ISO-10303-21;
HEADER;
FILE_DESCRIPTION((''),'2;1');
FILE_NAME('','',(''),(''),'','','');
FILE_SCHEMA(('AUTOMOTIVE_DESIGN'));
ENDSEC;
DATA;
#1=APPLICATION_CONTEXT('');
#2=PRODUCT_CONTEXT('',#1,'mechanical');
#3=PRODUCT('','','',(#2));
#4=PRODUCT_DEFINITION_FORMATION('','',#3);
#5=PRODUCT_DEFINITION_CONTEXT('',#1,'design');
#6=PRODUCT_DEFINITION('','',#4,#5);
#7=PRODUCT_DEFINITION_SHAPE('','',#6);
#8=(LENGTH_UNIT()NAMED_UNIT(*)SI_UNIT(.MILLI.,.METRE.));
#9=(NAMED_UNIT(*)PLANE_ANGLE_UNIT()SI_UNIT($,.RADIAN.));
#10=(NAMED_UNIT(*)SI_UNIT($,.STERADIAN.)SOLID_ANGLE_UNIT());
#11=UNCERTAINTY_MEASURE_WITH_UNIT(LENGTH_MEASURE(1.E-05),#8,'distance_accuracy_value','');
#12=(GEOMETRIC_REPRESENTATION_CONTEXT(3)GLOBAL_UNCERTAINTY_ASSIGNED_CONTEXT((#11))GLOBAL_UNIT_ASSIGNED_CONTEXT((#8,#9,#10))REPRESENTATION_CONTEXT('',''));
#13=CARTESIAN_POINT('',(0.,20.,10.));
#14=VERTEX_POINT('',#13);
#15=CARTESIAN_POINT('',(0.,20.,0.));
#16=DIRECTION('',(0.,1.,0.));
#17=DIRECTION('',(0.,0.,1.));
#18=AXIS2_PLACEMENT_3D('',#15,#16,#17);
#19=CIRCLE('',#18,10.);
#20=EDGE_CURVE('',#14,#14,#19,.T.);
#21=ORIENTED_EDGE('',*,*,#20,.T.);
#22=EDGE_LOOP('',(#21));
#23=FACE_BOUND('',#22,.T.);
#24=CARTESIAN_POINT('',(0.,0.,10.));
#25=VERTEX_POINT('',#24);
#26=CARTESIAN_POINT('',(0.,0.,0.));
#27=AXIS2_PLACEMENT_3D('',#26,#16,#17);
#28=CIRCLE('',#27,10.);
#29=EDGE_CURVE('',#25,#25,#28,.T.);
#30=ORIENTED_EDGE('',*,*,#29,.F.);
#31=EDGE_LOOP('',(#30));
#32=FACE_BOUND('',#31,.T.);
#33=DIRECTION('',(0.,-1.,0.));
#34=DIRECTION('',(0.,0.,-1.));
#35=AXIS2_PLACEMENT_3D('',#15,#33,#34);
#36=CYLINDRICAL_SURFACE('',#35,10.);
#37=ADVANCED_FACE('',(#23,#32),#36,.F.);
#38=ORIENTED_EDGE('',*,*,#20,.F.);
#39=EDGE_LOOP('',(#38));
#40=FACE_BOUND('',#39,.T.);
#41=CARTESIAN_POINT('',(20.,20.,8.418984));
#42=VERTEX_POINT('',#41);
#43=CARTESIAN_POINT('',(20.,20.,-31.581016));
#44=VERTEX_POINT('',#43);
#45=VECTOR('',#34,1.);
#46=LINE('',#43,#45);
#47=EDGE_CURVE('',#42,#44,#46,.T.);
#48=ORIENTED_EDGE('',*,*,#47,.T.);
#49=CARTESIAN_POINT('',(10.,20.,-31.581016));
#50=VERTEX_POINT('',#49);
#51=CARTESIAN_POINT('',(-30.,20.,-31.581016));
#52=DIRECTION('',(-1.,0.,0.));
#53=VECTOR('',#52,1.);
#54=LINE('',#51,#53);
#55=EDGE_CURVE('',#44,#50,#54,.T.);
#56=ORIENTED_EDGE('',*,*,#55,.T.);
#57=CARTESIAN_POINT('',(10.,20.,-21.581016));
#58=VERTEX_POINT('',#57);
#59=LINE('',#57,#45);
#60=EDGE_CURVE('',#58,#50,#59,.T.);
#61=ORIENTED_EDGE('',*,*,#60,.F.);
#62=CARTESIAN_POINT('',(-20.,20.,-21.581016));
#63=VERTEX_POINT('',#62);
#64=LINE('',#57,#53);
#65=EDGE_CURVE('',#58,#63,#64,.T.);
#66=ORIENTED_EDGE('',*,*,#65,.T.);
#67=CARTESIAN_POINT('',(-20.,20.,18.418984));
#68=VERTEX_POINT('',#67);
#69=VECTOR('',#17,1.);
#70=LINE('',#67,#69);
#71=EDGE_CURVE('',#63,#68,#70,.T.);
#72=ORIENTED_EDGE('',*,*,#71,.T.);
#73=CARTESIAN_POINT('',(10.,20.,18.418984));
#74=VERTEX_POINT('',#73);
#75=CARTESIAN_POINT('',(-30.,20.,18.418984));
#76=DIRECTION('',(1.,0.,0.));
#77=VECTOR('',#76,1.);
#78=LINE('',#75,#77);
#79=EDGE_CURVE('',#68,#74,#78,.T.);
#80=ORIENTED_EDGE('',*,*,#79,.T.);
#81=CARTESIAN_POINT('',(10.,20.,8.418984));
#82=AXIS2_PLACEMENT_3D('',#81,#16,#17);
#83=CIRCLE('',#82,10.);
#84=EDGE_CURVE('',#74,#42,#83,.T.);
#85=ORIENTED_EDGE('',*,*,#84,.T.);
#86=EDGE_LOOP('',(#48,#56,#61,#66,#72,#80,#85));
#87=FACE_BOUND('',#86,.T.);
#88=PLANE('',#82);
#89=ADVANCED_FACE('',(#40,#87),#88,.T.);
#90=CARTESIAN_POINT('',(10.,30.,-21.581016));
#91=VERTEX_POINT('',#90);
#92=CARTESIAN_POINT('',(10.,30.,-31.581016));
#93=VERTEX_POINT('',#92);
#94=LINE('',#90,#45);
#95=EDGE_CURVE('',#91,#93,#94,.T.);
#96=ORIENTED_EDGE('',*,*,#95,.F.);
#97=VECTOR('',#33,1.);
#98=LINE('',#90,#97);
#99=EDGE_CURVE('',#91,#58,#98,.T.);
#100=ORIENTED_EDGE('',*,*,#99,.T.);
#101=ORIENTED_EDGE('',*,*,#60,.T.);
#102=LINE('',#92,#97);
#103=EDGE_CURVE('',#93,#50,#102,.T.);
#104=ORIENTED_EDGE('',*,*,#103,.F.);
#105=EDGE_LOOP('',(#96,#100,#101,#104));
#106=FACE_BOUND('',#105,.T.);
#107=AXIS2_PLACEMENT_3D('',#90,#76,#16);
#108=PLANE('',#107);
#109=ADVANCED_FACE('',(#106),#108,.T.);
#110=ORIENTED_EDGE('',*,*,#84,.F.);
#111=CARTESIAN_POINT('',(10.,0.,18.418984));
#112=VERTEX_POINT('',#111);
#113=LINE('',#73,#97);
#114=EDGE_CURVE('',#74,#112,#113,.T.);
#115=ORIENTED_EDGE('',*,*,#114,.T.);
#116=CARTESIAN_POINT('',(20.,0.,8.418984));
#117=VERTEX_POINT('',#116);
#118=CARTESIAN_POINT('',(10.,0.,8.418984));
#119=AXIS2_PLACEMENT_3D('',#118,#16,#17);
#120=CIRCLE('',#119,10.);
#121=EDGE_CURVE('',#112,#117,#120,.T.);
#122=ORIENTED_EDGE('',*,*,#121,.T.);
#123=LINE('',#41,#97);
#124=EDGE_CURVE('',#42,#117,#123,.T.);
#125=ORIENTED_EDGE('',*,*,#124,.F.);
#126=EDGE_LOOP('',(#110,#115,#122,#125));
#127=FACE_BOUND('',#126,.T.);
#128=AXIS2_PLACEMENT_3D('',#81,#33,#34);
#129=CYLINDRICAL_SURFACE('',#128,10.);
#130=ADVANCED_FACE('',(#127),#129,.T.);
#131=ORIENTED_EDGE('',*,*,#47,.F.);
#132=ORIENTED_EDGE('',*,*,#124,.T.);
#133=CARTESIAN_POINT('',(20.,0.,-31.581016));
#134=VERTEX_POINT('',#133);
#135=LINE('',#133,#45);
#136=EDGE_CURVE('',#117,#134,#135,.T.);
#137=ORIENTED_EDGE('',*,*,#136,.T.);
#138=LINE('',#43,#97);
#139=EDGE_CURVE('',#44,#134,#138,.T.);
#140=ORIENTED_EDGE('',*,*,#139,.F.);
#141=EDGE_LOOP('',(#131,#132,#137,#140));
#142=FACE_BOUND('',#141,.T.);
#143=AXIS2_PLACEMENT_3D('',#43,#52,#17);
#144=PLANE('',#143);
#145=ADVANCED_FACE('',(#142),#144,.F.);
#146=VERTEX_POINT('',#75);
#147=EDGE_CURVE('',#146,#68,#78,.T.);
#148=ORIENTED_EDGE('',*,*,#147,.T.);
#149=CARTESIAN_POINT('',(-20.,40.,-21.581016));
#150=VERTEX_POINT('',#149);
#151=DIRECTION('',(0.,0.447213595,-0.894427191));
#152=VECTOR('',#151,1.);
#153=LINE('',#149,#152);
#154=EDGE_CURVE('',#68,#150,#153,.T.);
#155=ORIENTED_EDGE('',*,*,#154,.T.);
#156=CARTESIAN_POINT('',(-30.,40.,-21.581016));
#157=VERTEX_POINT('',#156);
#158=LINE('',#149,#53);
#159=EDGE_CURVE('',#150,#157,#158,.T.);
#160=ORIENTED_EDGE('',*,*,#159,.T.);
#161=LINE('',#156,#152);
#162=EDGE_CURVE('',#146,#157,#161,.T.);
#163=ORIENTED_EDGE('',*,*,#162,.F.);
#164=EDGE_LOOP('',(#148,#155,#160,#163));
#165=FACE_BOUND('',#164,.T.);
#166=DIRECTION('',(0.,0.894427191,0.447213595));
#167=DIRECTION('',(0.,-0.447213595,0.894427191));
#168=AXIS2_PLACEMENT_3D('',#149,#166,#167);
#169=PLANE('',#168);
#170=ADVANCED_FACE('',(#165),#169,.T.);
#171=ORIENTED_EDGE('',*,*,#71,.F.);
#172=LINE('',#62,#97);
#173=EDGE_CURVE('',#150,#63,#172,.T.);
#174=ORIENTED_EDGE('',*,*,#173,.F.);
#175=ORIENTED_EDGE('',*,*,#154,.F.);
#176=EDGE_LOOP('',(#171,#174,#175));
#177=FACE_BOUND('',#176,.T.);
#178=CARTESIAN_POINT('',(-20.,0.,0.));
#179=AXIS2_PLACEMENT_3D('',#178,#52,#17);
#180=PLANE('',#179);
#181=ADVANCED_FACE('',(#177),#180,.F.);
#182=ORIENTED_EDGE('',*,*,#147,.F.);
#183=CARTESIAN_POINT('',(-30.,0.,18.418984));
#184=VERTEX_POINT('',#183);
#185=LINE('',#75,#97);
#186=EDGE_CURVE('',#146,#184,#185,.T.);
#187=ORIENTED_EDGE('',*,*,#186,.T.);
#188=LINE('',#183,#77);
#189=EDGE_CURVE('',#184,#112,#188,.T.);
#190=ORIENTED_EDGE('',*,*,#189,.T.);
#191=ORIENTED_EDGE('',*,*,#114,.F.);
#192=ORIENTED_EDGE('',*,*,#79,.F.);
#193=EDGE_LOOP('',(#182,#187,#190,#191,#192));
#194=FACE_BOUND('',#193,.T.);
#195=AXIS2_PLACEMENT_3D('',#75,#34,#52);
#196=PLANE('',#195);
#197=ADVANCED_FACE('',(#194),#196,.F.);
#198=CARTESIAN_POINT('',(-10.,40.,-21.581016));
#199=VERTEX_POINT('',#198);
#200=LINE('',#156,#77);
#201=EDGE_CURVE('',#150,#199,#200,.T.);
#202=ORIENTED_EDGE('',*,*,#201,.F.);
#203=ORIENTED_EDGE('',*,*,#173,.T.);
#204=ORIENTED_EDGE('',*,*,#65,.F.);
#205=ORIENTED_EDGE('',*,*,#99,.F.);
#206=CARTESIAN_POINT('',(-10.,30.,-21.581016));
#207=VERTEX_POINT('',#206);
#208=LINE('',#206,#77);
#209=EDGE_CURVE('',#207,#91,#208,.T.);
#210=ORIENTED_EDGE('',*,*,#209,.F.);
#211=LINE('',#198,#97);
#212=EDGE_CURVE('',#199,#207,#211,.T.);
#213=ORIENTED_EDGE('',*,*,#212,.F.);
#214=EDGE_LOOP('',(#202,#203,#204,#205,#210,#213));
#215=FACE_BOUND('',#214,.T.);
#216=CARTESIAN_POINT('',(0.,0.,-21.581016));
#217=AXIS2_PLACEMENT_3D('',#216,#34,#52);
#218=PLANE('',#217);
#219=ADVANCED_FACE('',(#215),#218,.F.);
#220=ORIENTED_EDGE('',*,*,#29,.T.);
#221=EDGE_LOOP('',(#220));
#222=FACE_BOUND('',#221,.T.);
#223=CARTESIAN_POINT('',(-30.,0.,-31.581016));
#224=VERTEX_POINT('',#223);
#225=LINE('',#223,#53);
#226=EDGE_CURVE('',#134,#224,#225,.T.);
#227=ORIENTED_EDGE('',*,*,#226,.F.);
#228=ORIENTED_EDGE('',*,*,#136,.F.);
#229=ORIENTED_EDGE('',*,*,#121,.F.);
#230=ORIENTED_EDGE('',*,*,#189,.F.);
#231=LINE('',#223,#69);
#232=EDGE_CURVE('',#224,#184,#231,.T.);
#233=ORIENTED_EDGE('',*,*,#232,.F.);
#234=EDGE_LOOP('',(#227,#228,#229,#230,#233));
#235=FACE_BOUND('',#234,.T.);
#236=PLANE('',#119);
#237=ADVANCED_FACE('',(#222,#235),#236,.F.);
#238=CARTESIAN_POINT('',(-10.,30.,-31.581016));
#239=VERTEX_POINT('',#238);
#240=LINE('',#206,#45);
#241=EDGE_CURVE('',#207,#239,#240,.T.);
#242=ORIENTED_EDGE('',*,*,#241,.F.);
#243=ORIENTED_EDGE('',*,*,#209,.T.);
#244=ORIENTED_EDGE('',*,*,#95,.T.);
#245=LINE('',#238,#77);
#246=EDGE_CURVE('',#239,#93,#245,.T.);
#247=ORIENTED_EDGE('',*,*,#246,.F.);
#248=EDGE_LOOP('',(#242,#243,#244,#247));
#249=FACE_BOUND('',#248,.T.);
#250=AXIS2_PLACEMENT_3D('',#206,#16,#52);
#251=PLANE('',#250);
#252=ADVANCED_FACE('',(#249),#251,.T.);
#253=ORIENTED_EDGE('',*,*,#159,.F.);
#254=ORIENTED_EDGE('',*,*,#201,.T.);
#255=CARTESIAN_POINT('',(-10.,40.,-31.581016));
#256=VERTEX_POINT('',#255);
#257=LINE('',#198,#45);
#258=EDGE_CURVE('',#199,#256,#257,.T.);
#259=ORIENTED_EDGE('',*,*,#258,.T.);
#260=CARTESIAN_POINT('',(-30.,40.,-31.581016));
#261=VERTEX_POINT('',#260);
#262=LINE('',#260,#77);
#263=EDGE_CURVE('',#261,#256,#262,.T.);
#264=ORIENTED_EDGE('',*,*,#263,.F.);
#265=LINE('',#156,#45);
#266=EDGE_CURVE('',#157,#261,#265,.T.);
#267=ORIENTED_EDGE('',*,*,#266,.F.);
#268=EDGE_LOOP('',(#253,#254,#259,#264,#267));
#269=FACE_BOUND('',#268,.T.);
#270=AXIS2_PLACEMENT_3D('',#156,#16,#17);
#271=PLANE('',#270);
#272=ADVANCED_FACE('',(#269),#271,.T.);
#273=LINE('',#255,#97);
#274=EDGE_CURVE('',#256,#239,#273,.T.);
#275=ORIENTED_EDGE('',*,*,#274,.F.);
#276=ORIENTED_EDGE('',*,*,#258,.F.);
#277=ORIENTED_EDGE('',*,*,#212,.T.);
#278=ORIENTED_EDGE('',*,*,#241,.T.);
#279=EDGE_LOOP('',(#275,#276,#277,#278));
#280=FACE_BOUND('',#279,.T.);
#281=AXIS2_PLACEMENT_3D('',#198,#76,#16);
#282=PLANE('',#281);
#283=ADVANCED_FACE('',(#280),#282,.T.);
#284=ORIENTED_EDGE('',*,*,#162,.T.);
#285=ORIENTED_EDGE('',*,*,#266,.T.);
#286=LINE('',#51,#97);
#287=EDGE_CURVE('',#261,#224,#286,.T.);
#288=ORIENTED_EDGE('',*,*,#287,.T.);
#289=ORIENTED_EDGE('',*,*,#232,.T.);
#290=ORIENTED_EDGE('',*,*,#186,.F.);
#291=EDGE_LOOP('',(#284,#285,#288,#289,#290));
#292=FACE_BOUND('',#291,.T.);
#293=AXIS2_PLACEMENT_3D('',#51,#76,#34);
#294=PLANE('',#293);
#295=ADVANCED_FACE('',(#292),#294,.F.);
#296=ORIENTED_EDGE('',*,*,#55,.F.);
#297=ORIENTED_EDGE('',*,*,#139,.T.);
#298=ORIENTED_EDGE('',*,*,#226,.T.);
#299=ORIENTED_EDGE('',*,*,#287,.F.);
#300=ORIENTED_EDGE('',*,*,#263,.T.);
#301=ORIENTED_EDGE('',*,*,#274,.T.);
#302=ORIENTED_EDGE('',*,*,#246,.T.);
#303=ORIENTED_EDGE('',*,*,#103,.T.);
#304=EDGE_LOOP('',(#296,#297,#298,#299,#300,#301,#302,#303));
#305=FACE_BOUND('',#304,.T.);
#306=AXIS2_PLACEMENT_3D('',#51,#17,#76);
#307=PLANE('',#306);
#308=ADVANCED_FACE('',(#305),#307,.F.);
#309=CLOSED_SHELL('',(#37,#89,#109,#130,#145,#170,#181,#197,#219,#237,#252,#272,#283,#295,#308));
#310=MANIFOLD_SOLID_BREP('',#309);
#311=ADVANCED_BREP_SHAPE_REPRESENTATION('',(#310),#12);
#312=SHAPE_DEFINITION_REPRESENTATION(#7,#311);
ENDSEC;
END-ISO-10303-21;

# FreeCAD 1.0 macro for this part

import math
import FreeCAD as App
import Part
import Sketcher

V = App.Vector
Q = App.Units.Quantity

doc = App.newDocument("Part")
body = doc.addObject("PartDesign::Body", "Body")

# Sketch on XZ plane
sketch1 = body.newObject("Sketcher::SketchObject", "Sketch")
sketch1.AttachmentSupport = (doc.getObject("XZ_Plane"), [""])
sketch1.MapMode = "FlatFace"
sketch1.addGeometry(Part.LineSegment(V(20, -32, 0), V(-30, -32, 0)), False)
sketch1.addGeometry(Part.LineSegment(V(-30, -32, 0), V(-30, 18, 0)), False)
sketch1.addGeometry(Part.LineSegment(V(-30, 18, 0), V(10, 18, 0)), False)
sketch1.addGeometry(Part.ArcOfCircle(Part.Circle(V(10, 8, 0), V(0, 0, 1), 10), math.radians(0), math.radians(90)), False)
sketch1.addGeometry(Part.LineSegment(V(20, 8, 0), V(20, -32, 0)), False)
sketch1.addGeometry(Part.Circle(V(0, 0, 0), V(0, 0, 1), 10), False)
sketch1.addConstraint(Sketcher.Constraint("Coincident", 0, 2, 1, 1))
sketch1.addConstraint(Sketcher.Constraint("Coincident", 1, 2, 2, 1))
sketch1.addConstraint(Sketcher.Constraint("Tangent", 2, 2, 3, 2))
sketch1.addConstraint(Sketcher.Constraint("Tangent", 3, 1, 4, 1))
sketch1.addConstraint(Sketcher.Constraint("Coincident", 4, 2, 0, 1))
sketch1.addConstraint(Sketcher.Constraint("Horizontal", 0))
sketch1.addConstraint(Sketcher.Constraint("Vertical", 1))
sketch1.addConstraint(Sketcher.Constraint("Horizontal", 2))
sketch1.addConstraint(Sketcher.Constraint("Vertical", 4))
sketch1.addConstraint(Sketcher.Constraint("Coincident", 5, 3, -1, 1))
sketch1.addConstraint(Sketcher.Constraint("Equal", 3, 5))
sketch1.addConstraint(Sketcher.Constraint("Equal", 0, 1))
sketch1.addConstraint(Sketcher.Constraint("Diameter", 5, Q("20 mm")))
sketch1.addConstraint(Sketcher.Constraint("DistanceX", 0, 2, 0, 1, Q("50 mm")))
sketch1.addConstraint(Sketcher.Constraint("DistanceX", -1, 1, 3, 3, Q("10 mm")))
sketch1.addConstraint(Sketcher.Constraint("DistanceY", -1, 1, 3, 3, Q("8.418984 mm")))
pad1 = body.newObject("PartDesign::Pad", "Pad")
pad1.Profile = sketch1
pad1.Length = 20
pad1.Reversed = True

# Sketch on YZ plane
sketch2 = body.newObject("Sketcher::SketchObject", "Sketch001")
sketch2.AttachmentSupport = (doc.getObject("YZ_Plane"), [""])
sketch2.MapMode = "FlatFace"
sketch2.AttachmentOffset = App.Placement(V(0, 0, -30), App.Rotation())
sketch2.addGeometry(Part.LineSegment(V(20, -22, 0), V(20, 18, 0)), False)
sketch2.addGeometry(Part.LineSegment(V(20, 18, 0), V(40, -22, 0)), False)
sketch2.addGeometry(Part.LineSegment(V(40, -22, 0), V(20, -22, 0)), False)
sketch2.addConstraint(Sketcher.Constraint("Coincident", 0, 2, 1, 1))
sketch2.addConstraint(Sketcher.Constraint("Coincident", 1, 2, 2, 1))
sketch2.addConstraint(Sketcher.Constraint("Coincident", 2, 2, 0, 1))
sketch2.addConstraint(Sketcher.Constraint("Vertical", 0))
sketch2.addConstraint(Sketcher.Constraint("Horizontal", 2))
sketch2.addConstraint(Sketcher.Constraint("DistanceX", 2, 2, 2, 1, Q("20 mm")))
sketch2.addConstraint(Sketcher.Constraint("DistanceY", 0, 1, 0, 2, Q("40 mm")))
sketch2.addConstraint(Sketcher.Constraint("DistanceX", -1, 1, 0, 2, Q("20 mm")))
sketch2.addConstraint(Sketcher.Constraint("DistanceY", -1, 1, 0, 2, Q("18.418984 mm")))
pad2 = body.newObject("PartDesign::Pad", "Pad001")
pad2.Profile = sketch2
pad2.Length = 10

# Sketch on XY plane
sketch3 = body.newObject("Sketcher::SketchObject", "Sketch002")
sketch3.AttachmentSupport = (doc.getObject("XY_Plane"), [""])
sketch3.MapMode = "FlatFace"
sketch3.AttachmentOffset = App.Placement(V(0, 0, -31.581016), App.Rotation())
sketch3.addGeometry(Part.LineSegment(V(-30, 20, 0), V(-30, 40, 0)), False)
sketch3.addGeometry(Part.LineSegment(V(-30, 40, 0), V(-10, 40, 0)), False)
sketch3.addGeometry(Part.LineSegment(V(-10, 40, 0), V(-10, 30, 0)), False)
sketch3.addGeometry(Part.LineSegment(V(-10, 30, 0), V(10, 30, 0)), False)
sketch3.addGeometry(Part.LineSegment(V(10, 30, 0), V(10, 20, 0)), False)
sketch3.addGeometry(Part.LineSegment(V(10, 20, 0), V(-30, 20, 0)), False)
sketch3.addConstraint(Sketcher.Constraint("Coincident", 0, 2, 1, 1))
sketch3.addConstraint(Sketcher.Constraint("Coincident", 1, 2, 2, 1))
sketch3.addConstraint(Sketcher.Constraint("Coincident", 2, 2, 3, 1))
sketch3.addConstraint(Sketcher.Constraint("Coincident", 3, 2, 4, 1))
sketch3.addConstraint(Sketcher.Constraint("Coincident", 4, 2, 5, 1))
sketch3.addConstraint(Sketcher.Constraint("Coincident", 5, 2, 0, 1))
sketch3.addConstraint(Sketcher.Constraint("Vertical", 0))
sketch3.addConstraint(Sketcher.Constraint("Horizontal", 1))
sketch3.addConstraint(Sketcher.Constraint("Vertical", 2))
sketch3.addConstraint(Sketcher.Constraint("Horizontal", 3))
sketch3.addConstraint(Sketcher.Constraint("Vertical", 4))
sketch3.addConstraint(Sketcher.Constraint("Horizontal", 5))
sketch3.addConstraint(Sketcher.Constraint("Equal", 1, 3))
sketch3.addConstraint(Sketcher.Constraint("Equal", 3, 0))
sketch3.addConstraint(Sketcher.Constraint("Equal", 2, 4))
sketch3.addConstraint(Sketcher.Constraint("DistanceX", 1, 1, 1, 2, Q("20 mm")))
sketch3.addConstraint(Sketcher.Constraint("DistanceX", 0, 2, -1, 1, Q("30 mm")))
sketch3.addConstraint(Sketcher.Constraint("DistanceY", -1, 1, 0, 2, Q("40 mm")))
pad3 = body.newObject("PartDesign::Pad", "Pad002")
pad3.Profile = sketch3
pad3.Length = 10

doc.recompute()
